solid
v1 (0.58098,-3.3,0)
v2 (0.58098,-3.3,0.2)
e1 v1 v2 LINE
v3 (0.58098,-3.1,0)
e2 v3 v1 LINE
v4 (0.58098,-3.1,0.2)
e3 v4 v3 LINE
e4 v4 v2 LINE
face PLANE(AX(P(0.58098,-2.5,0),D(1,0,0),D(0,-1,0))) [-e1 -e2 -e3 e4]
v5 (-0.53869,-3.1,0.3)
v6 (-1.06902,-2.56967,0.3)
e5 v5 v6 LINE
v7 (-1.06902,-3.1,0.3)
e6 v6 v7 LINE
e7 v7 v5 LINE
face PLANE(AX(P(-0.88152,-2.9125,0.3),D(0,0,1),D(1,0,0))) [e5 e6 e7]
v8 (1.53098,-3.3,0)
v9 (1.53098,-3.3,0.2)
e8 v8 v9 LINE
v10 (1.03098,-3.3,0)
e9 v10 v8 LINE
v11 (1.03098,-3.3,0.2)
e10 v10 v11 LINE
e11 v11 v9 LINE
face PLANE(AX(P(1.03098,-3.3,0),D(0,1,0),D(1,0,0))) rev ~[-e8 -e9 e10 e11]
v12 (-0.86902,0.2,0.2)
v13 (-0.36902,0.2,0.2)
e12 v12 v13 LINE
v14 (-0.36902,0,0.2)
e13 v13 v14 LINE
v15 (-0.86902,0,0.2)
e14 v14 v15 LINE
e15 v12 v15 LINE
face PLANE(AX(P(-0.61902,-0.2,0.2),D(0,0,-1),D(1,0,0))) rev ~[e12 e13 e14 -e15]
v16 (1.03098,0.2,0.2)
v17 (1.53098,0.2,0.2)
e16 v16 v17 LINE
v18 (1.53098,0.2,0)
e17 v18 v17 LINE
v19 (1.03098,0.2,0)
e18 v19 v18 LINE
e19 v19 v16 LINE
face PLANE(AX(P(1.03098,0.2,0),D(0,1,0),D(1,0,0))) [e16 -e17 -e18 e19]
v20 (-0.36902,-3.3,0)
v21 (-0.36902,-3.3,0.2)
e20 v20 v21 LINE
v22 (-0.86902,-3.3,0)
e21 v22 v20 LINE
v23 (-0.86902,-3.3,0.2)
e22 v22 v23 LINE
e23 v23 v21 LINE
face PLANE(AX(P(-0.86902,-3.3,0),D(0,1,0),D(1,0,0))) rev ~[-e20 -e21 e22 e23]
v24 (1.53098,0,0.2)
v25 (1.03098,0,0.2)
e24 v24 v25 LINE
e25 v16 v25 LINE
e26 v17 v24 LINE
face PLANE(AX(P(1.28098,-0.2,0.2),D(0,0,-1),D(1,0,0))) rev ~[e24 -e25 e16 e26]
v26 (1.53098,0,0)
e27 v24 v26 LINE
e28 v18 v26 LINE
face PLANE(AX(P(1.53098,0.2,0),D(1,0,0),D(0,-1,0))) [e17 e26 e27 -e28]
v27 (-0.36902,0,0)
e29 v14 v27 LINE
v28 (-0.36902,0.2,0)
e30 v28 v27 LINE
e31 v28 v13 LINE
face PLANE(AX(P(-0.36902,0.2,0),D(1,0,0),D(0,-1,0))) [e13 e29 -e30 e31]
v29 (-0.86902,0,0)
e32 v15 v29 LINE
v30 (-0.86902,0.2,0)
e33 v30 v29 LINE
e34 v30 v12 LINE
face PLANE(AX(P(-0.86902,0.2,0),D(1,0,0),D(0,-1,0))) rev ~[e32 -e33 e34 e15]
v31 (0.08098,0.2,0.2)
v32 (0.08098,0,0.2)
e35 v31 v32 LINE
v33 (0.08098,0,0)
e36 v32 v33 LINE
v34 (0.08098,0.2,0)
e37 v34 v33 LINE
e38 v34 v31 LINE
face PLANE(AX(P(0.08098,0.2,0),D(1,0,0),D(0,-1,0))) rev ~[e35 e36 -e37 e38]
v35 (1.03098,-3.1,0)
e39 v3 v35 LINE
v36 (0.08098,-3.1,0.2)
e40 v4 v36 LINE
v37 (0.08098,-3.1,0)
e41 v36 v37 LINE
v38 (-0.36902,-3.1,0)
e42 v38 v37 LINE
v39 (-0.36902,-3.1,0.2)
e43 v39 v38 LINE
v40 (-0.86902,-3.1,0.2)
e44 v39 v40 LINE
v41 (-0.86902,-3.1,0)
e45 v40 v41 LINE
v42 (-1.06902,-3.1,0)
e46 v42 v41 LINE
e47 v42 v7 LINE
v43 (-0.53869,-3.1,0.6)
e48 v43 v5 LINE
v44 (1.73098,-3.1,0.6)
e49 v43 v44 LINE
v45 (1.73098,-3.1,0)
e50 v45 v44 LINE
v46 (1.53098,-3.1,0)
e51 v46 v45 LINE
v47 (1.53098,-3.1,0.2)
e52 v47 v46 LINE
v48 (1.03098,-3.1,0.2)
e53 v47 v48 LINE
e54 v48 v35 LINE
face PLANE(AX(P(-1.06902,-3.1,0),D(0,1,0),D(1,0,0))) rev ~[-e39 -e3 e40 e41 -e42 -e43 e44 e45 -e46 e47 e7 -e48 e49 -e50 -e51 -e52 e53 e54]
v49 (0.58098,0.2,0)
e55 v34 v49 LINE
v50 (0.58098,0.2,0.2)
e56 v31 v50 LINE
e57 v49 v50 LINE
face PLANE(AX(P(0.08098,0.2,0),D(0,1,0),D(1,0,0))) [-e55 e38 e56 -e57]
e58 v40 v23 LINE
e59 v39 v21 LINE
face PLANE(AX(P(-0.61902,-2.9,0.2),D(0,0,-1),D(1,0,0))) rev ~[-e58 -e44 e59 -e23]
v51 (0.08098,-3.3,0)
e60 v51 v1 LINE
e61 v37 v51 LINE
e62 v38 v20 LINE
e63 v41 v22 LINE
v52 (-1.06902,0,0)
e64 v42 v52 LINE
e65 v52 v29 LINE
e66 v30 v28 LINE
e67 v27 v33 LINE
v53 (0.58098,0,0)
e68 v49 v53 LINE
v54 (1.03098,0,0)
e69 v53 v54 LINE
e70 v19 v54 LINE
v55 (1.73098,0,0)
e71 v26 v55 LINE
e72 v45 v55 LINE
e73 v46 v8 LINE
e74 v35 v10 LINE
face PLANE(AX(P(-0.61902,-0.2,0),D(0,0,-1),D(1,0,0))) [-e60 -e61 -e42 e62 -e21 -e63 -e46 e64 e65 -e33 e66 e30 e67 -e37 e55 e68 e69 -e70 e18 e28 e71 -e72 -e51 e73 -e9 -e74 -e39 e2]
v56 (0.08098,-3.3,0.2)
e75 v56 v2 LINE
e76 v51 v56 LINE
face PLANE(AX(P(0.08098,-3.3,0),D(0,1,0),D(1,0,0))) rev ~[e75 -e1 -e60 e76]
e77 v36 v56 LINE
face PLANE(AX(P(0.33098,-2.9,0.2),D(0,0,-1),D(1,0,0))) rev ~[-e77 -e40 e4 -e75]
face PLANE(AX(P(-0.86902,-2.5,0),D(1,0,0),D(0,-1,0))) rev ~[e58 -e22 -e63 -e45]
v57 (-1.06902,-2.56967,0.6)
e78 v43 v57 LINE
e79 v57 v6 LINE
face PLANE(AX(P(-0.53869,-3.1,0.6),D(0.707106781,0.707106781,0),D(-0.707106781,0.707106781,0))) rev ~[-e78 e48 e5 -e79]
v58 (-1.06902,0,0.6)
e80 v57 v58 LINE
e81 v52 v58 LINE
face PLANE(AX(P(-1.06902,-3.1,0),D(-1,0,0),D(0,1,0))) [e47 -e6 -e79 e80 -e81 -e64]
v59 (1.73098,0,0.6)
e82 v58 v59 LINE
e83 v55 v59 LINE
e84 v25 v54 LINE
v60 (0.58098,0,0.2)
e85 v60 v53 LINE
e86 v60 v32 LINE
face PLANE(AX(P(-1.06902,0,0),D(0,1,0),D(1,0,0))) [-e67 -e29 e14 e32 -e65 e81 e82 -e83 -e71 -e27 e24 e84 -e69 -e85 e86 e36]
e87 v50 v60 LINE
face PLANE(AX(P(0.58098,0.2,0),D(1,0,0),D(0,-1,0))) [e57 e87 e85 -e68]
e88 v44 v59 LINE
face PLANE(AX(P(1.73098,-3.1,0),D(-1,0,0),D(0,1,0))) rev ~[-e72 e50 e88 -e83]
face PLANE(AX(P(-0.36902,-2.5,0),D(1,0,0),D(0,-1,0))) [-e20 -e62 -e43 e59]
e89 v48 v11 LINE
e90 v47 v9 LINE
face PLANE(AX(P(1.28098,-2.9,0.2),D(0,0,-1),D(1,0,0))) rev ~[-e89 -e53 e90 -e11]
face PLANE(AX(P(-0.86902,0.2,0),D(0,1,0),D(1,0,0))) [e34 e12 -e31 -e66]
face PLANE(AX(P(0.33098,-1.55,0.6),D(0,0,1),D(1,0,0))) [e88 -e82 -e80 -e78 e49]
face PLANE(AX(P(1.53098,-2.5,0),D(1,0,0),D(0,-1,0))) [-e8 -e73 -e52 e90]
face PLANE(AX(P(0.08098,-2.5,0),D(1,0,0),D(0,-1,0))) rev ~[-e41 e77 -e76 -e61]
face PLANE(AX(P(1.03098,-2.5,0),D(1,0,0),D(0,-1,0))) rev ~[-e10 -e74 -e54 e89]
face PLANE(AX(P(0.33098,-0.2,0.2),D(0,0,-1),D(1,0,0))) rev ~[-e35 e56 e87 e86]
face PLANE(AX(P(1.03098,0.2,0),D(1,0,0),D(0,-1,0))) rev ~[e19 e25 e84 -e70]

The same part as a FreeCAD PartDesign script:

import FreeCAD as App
import Part
import Sketcher
Q = App.Units.Quantity


def add_polygon(sketch, points):
    """Adds a closed chain of lines whose ends are joined by coincident constraints."""
    first, n = sketch.GeometryCount, len(points)
    for a, b in zip(points, points[1:] + points[:1]):
        sketch.addGeometry(Part.LineSegment(App.Vector(*a, 0), App.Vector(*b, 0)), False)
    for i in range(n):
        sketch.addConstraint(Sketcher.Constraint("Coincident", first + i, 2, first + (i + 1) % n, 1))

doc = App.newDocument("Part")
body = doc.addObject("PartDesign::Body", "Body")

sketch1 = body.newObject("Sketcher::SketchObject", "Sketch")
sketch1.AttachmentSupport = (doc.getObject("XY_Plane"), [""])
sketch1.MapMode = "FlatFace"
add_polygon(sketch1, [(-1.06902, 0), (-1.06902, -3.1), (1.73098, -3.1), (1.73098, 0)])
sketch1.addConstraint(Sketcher.Constraint("Vertical", 0))
sketch1.addConstraint(Sketcher.Constraint("Horizontal", 1))
sketch1.addConstraint(Sketcher.Constraint("Vertical", 2))
sketch1.addConstraint(Sketcher.Constraint("Horizontal", 3))
sketch1.addConstraint(Sketcher.Constraint("PointOnObject", 2, 2, -1))
sketch1.addConstraint(Sketcher.Constraint("DistanceX", 1, 1, 1, 2, Q("2.8 mm")))
sketch1.addConstraint(Sketcher.Constraint("DistanceY", 0, 2, 0, 1, Q("3.1 mm")))
sketch1.addConstraint(Sketcher.Constraint("DistanceX", 0, 2, -1, 1, Q("1.06902 mm")))
pad1 = body.newObject("PartDesign::Pad", "Pad")
pad1.Profile = sketch1
pad1.Length = 0.6

sketch2 = body.newObject("Sketcher::SketchObject", "Sketch001")
sketch2.AttachmentSupport = (doc.getObject("XY_Plane"), [""])
sketch2.MapMode = "FlatFace"
sketch2.AttachmentOffset = App.Placement(App.Vector(0, 0, 0.6), App.Rotation())
add_polygon(sketch2, [(-0.53869, -3.1), (-1.06902, -2.56967), (-1.06902, -3.1)])
sketch2.addConstraint(Sketcher.Constraint("Vertical", 1))
sketch2.addConstraint(Sketcher.Constraint("Horizontal", 2))
sketch2.addConstraint(Sketcher.Constraint("Equal", 2, 1))
sketch2.addConstraint(Sketcher.Constraint("DistanceY", 1, 2, -1, 1, Q("3.1 mm")))
sketch2.addConstraint(Sketcher.Constraint("Distance", 0, Q("0.75 mm")))
sketch2.addConstraint(Sketcher.Constraint("DistanceX", 0, 2, -1, 1, Q("1.06902 mm")))
pocket1 = body.newObject("PartDesign::Pocket", "Pocket")
pocket1.Profile = sketch2
pocket1.Length = 0.3

sketch3 = body.newObject("Sketcher::SketchObject", "Sketch002")
sketch3.AttachmentSupport = (doc.getObject("XY_Plane"), [""])
sketch3.MapMode = "FlatFace"
add_polygon(sketch3, [(-0.86902, -0.6), (-0.86902, 0.2), (-0.36902, 0.2), (-0.36902, -0.6)])
add_polygon(sketch3, [(0.08098, -0.6), (0.08098, 0.2), (0.58098, 0.2), (0.58098, -0.6)])
add_polygon(sketch3, [(1.03098, -0.6), (1.03098, 0.2), (1.53098, 0.2), (1.53098, -0.6)])
add_polygon(sketch3, [(1.03098, -3.3), (1.03098, -2.5), (1.53098, -2.5), (1.53098, -3.3)])
add_polygon(sketch3, [(0.08098, -3.3), (0.08098, -2.5), (0.58098, -2.5), (0.58098, -3.3)])
add_polygon(sketch3, [(-0.86902, -3.3), (-0.86902, -2.5), (-0.36902, -2.5), (-0.36902, -3.3)])
sketch3.addConstraint(Sketcher.Constraint("Vertical", 0))
sketch3.addConstraint(Sketcher.Constraint("Horizontal", 1))
sketch3.addConstraint(Sketcher.Constraint("Vertical", 2))
sketch3.addConstraint(Sketcher.Constraint("Horizontal", 3))
sketch3.addConstraint(Sketcher.Constraint("Vertical", 4))
sketch3.addConstraint(Sketcher.Constraint("Horizontal", 5))
sketch3.addConstraint(Sketcher.Constraint("Vertical", 6))
sketch3.addConstraint(Sketcher.Constraint("Horizontal", 7))
sketch3.addConstraint(Sketcher.Constraint("Vertical", 8))
sketch3.addConstraint(Sketcher.Constraint("Horizontal", 9))
sketch3.addConstraint(Sketcher.Constraint("Vertical", 10))
sketch3.addConstraint(Sketcher.Constraint("Horizontal", 11))
sketch3.addConstraint(Sketcher.Constraint("Vertical", 12))
sketch3.addConstraint(Sketcher.Constraint("Horizontal", 13))
sketch3.addConstraint(Sketcher.Constraint("Vertical", 14))
sketch3.addConstraint(Sketcher.Constraint("Horizontal", 15))
sketch3.addConstraint(Sketcher.Constraint("Vertical", 16))
sketch3.addConstraint(Sketcher.Constraint("Horizontal", 17))
sketch3.addConstraint(Sketcher.Constraint("Vertical", 18))
sketch3.addConstraint(Sketcher.Constraint("Horizontal", 19))
sketch3.addConstraint(Sketcher.Constraint("Vertical", 20))
sketch3.addConstraint(Sketcher.Constraint("Horizontal", 21))
sketch3.addConstraint(Sketcher.Constraint("Vertical", 22))
sketch3.addConstraint(Sketcher.Constraint("Horizontal", 23))
sketch3.addConstraint(Sketcher.Constraint("Horizontal", 1, 2, 4, 2))
sketch3.addConstraint(Sketcher.Constraint("Horizontal", 3, 2, 6, 2))
sketch3.addConstraint(Sketcher.Constraint("Horizontal", 5, 2, 8, 2))
sketch3.addConstraint(Sketcher.Constraint("Horizontal", 7, 2, 10, 2))
sketch3.addConstraint(Sketcher.Constraint("Horizontal", 13, 2, 16, 2))
sketch3.addConstraint(Sketcher.Constraint("Horizontal", 15, 2, 18, 2))
sketch3.addConstraint(Sketcher.Constraint("Horizontal", 17, 2, 20, 2))
sketch3.addConstraint(Sketcher.Constraint("Horizontal", 19, 2, 22, 2))
sketch3.addConstraint(Sketcher.Constraint("Vertical", 11, 2, 12, 2))
sketch3.addConstraint(Sketcher.Constraint("Vertical", 10, 2, 13, 2))
sketch3.addConstraint(Sketcher.Constraint("Vertical", 7, 2, 16, 2))
sketch3.addConstraint(Sketcher.Constraint("Vertical", 6, 2, 17, 2))
sketch3.addConstraint(Sketcher.Constraint("Vertical", 3, 2, 20, 2))
sketch3.addConstraint(Sketcher.Constraint("Vertical", 2, 2, 21, 2))
sketch3.addConstraint(Sketcher.Constraint("Equal", 3, 5))
sketch3.addConstraint(Sketcher.Constraint("Equal", 7, 9))
sketch3.addConstraint(Sketcher.Constraint("Equal", 10, 12))
sketch3.addConstraint(Sketcher.Constraint("DistanceX", 1, 1, 1, 2, Q("0.5 mm")))
sketch3.addConstraint(Sketcher.Constraint("DistanceY", 0, 1, 0, 2, Q("0.8 mm")))
sketch3.addConstraint(Sketcher.Constraint("DistanceY", -1, 1, 0, 2, Q("0.2 mm")))
sketch3.addConstraint(Sketcher.Constraint("DistanceY", 12, 2, -1, 1, Q("2.5 mm")))
sketch3.addConstraint(Sketcher.Constraint("DistanceX", 1, 2, 8, 2, Q("1.4 mm")))
sketch3.addConstraint(Sketcher.Constraint("DistanceX", 1, 2, 4, 2, Q("0.45 mm")))
sketch3.addConstraint(Sketcher.Constraint("DistanceX", 0, 2, -1, 1, Q("0.86902 mm")))
pad2 = body.newObject("PartDesign::Pad", "Pad001")
pad2.Profile = sketch3
pad2.Length = 0.2

doc.recompute()
